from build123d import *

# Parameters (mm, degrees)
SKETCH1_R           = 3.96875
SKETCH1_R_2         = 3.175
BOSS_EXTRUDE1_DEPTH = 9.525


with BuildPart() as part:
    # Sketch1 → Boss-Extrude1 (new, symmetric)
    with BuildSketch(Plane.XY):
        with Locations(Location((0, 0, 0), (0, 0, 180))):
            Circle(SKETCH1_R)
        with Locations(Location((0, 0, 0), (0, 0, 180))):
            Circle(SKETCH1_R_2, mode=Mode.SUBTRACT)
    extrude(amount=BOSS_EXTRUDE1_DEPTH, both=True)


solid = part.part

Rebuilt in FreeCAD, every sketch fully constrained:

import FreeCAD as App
import Part
import Sketcher
Q = App.Units.Quantity

doc = App.newDocument("Part")
body = doc.addObject("PartDesign::Body", "Body")

sketch1 = doc.addObject("Sketcher::SketchObject", "Sketch")
body.addObject(sketch1)
sketch1.AttachmentSupport = (doc.XY_Plane, [""])
sketch1.MapMode = "FlatFace"
sketch1.addGeometry(Part.Circle(App.Vector(0, 0, 0), App.Vector(0, 0, 1), 4), False)
sketch1.addGeometry(Part.Circle(App.Vector(0, 0, 0), App.Vector(0, 0, 1), 3.2), False)
sketch1.addConstraint(Sketcher.Constraint("Coincident", 0, 3, -1, 1))
sketch1.addConstraint(Sketcher.Constraint("Coincident", 1, 3, -1, 1))
sketch1.addConstraint(Sketcher.Constraint("Diameter", 1, Q("0.25 in")))
sketch1.addConstraint(Sketcher.Constraint("Diameter", 0, Q("0.3125 in")))
pad1 = doc.addObject("PartDesign::Pad", "Pad")
body.addObject(pad1)
pad1.Profile = sketch1
pad1.Length = Q("0.75 in")
pad1.Midplane = True

doc.recompute()
